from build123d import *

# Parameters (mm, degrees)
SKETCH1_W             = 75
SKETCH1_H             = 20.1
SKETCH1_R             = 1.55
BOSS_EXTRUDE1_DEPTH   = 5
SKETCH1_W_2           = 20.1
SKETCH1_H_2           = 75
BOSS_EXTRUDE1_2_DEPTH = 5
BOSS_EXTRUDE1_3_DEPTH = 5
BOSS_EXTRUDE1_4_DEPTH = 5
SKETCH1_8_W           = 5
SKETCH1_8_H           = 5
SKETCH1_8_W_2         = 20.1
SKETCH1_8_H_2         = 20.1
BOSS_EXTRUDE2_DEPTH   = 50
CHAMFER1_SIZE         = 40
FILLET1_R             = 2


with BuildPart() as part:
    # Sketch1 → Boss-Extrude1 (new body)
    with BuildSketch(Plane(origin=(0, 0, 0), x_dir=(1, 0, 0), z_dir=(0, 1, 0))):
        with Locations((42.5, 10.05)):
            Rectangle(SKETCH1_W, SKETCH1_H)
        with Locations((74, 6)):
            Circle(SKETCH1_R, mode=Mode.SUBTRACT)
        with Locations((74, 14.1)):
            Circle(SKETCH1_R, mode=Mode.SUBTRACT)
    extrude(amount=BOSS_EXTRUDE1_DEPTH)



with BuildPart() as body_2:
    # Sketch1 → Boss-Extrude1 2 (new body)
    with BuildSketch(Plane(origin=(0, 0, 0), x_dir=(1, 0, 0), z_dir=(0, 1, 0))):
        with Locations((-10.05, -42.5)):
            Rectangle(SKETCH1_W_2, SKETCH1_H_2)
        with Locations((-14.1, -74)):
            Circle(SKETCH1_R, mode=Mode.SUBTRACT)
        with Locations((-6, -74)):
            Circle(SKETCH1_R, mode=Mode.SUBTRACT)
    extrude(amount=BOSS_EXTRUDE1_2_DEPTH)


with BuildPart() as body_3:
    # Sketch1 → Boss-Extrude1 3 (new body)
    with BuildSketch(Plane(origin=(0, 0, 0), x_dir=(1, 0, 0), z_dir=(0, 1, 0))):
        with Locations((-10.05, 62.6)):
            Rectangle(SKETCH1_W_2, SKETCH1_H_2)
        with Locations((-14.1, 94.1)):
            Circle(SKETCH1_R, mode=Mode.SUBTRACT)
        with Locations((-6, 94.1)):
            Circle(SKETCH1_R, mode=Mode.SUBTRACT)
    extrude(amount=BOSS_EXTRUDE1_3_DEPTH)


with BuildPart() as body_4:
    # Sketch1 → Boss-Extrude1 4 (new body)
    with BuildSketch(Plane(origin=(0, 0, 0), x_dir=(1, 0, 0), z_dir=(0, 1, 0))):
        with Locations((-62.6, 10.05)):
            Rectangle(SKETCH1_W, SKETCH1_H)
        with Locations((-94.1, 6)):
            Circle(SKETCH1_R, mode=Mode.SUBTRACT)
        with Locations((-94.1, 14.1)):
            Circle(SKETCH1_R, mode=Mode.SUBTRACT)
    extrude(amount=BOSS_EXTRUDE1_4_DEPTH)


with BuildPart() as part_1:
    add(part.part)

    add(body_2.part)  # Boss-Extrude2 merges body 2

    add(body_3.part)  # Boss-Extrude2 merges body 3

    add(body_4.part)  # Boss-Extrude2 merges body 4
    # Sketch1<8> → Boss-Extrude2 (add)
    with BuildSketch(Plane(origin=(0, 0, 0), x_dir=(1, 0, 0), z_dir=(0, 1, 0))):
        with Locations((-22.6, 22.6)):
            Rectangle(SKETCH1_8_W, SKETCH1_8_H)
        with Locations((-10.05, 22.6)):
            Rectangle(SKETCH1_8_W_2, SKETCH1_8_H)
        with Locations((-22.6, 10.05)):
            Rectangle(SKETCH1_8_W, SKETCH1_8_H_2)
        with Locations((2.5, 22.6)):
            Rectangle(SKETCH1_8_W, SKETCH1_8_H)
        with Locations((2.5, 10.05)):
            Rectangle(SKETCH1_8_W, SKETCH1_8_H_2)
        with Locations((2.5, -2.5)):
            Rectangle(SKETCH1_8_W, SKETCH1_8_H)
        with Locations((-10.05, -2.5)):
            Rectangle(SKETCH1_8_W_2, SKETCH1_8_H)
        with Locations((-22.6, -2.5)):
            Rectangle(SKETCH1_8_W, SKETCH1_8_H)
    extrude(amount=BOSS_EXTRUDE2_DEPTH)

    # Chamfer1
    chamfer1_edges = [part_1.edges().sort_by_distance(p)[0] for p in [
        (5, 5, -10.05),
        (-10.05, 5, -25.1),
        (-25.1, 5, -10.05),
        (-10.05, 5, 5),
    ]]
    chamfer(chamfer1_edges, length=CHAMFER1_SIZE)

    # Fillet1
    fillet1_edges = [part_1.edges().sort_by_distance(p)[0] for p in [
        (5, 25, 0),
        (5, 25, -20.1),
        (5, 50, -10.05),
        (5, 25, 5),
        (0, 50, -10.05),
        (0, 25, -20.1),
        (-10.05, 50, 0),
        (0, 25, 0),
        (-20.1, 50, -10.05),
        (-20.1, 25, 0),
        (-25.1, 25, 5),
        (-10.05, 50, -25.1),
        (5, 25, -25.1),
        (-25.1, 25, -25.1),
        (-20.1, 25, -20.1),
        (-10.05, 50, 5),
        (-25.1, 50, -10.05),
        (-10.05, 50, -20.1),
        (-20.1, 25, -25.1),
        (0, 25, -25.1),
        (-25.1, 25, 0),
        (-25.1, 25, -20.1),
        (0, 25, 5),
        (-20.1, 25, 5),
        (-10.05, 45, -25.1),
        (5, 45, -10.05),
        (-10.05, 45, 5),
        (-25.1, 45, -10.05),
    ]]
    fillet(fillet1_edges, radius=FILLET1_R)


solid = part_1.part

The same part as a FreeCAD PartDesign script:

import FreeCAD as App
import Part
import Sketcher
Q = App.Units.Quantity


def edges_at(feature, points):
    """Names of the edges that pass closest to the given points."""
    edges = feature.Shape.Edges
    near = lambda p: min(range(len(edges)), key=lambda i: edges[i].distToShape(Part.Vertex(*p))[0])
    return sorted({f"Edge{near(p) + 1}" for p in points})


def add_polygon(sketch, points):
    """Adds a closed chain of lines whose ends are joined by coincident constraints."""
    first, n = sketch.GeometryCount, len(points)
    for a, b in zip(points, points[1:] + points[:1]):
        sketch.addGeometry(Part.LineSegment(App.Vector(*a, 0), App.Vector(*b, 0)), False)
    for i in range(n):
        sketch.addConstraint(Sketcher.Constraint("Coincident", first + i, 2, first + (i + 1) % n, 1))

doc = App.newDocument("Part")
params = doc.addObject("Spreadsheet::Sheet", "Params")
for row, (alias, value) in enumerate([
    ("sketch1_diameter", "3.1 mm"),
    ("sketch1_width", "75 mm"),
    ("sketch1_height", "20.1 mm"),
    ("pad1_length", "5 mm"),
    ("sketch2_diameter", "3.1 mm"),
    ("sketch2_height", "75 mm"),
    ("sketch2_width", "20.1 mm"),
    ("pad2_length", "5 mm"),
    ("sketch3_diameter", "3.1 mm"),
    ("sketch3_height", "75 mm"),
    ("sketch3_width", "20.1 mm"),
    ("pad3_length", "5 mm"),
    ("sketch4_diameter", "3.1 mm"),
    ("sketch4_width", "75 mm"),
    ("sketch4_height", "20.1 mm"),
    ("pad4_length", "5 mm"),
    ("sketch5_width", "30.1 mm"),
    ("sketch5_width2", "20.1 mm"),
    ("pad5_length", "50 mm"),
    ("chamfer_size", "40 mm"),
    ("fillet_radius", "2 mm"),
], start=1):
    params.set(f"A{row}", alias)
    params.set(f"B{row}", "=" + value)
    params.setAlias(f"B{row}", alias)

body = doc.addObject("PartDesign::Body", "Body")

# Sketch on XZ plane
sketch1 = body.newObject("Sketcher::SketchObject", "Sketch")
sketch1.AttachmentSupport = (doc.getObject("XZ_Plane"), [""])
sketch1.MapMode = "FlatFace"
add_polygon(sketch1, [(5, -20.1), (5, 0), (80, 0), (80, -20.1)])  # lines 0-3
sketch1.addGeometry(Part.Circle(App.Vector(74, -6, 0), App.Vector(0, 0, 1), 1.6), False)  # 4
sketch1.addGeometry(Part.Circle(App.Vector(74, -14.1, 0), App.Vector(0, 0, 1), 1.6), False)  # 5
sketch1.addConstraint(Sketcher.Constraint("Vertical", 0))
sketch1.addConstraint(Sketcher.Constraint("Horizontal", 1))
sketch1.addConstraint(Sketcher.Constraint("Vertical", 2))
sketch1.addConstraint(Sketcher.Constraint("Horizontal", 3))
sketch1.addConstraint(Sketcher.Constraint("Equal", 4, 5))
sketch1.addConstraint(Sketcher.Constraint("PointOnObject", 0, 2, -1))
sketch1.addConstraint(Sketcher.Constraint("Vertical", 4, 3, 5, 3))
sketch1.addConstraint(Sketcher.Constraint("Diameter", 4, Q("3.1 mm")))
sketch1.addConstraint(Sketcher.Constraint("DistanceX", 1, 1, 1, 2, Q("75 mm")))
sketch1.addConstraint(Sketcher.Constraint("DistanceY", 0, 1, 0, 2, Q("20.1 mm")))
sketch1.addConstraint(Sketcher.Constraint("DistanceX", -1, 1, 4, 3, Q("74 mm")))
sketch1.addConstraint(Sketcher.Constraint("DistanceY", 4, 3, -1, 1, Q("6 mm")))
sketch1.addConstraint(Sketcher.Constraint("DistanceX", -1, 1, 0, 2, Q("5 mm")))
sketch1.addConstraint(Sketcher.Constraint("DistanceY", 2, 2, 5, 3, Q("6 mm")))
sketch1.setExpression("Constraints[11]", "Params.sketch1_diameter")
sketch1.setExpression("Constraints[12]", "Params.sketch1_width")
sketch1.setExpression("Constraints[13]", "Params.sketch1_height")
pad1 = body.newObject("PartDesign::Pad", "Pad")
pad1.Profile = sketch1
pad1.setExpression("Length", "Params.pad1_length")
pad1.Reversed = True
body2 = doc.addObject("PartDesign::Body", "Body001")

# Sketch on XZ plane
sketch2 = body2.newObject("Sketcher::SketchObject", "Sketch001")
sketch2.AttachmentSupport = (doc.getObject("XZ_Plane001"), [""])
sketch2.MapMode = "FlatFace"
add_polygon(sketch2, [(-20.1, 5), (-20.1, 80), (0, 80), (0, 5)])  # lines 0-3
sketch2.addGeometry(Part.Circle(App.Vector(-14.1, 74, 0), App.Vector(0, 0, 1), 1.6), False)  # 4
sketch2.addGeometry(Part.Circle(App.Vector(-6, 74, 0), App.Vector(0, 0, 1), 1.6), False)  # 5
sketch2.addConstraint(Sketcher.Constraint("Vertical", 0))
sketch2.addConstraint(Sketcher.Constraint("Horizontal", 1))
sketch2.addConstraint(Sketcher.Constraint("Vertical", 2))
sketch2.addConstraint(Sketcher.Constraint("Horizontal", 3))
sketch2.addConstraint(Sketcher.Constraint("Equal", 4, 5))
sketch2.addConstraint(Sketcher.Constraint("PointOnObject", 1, 2, -2))
sketch2.addConstraint(Sketcher.Constraint("Horizontal", 4, 3, 5, 3))
sketch2.addConstraint(Sketcher.Constraint("Diameter", 4, Q("3.1 mm")))
sketch2.addConstraint(Sketcher.Constraint("DistanceY", 0, 1, 0, 2, Q("75 mm")))
sketch2.addConstraint(Sketcher.Constraint("DistanceX", 1, 1, 1, 2, Q("20.1 mm")))
sketch2.addConstraint(Sketcher.Constraint("DistanceY", -1, 1, 4, 3, Q("74 mm")))
sketch2.addConstraint(Sketcher.Constraint("DistanceX", 5, 3, -1, 1, Q("6 mm")))
sketch2.addConstraint(Sketcher.Constraint("DistanceY", -1, 1, 0, 2, Q("80 mm")))
sketch2.addConstraint(Sketcher.Constraint("DistanceX", 0, 2, 4, 3, Q("6 mm")))
sketch2.setExpression("Constraints[11]", "Params.sketch2_diameter")
sketch2.setExpression("Constraints[12]", "Params.sketch2_height")
sketch2.setExpression("Constraints[13]", "Params.sketch2_width")
pad2 = body2.newObject("PartDesign::Pad", "Pad001")
pad2.Profile = sketch2
pad2.setExpression("Length", "Params.pad2_length")
pad2.Reversed = True
body3 = doc.addObject("PartDesign::Body", "Body002")

# Sketch on XZ plane
sketch3 = body3.newObject("Sketcher::SketchObject", "Sketch002")
sketch3.AttachmentSupport = (doc.getObject("XZ_Plane002"), [""])
sketch3.MapMode = "FlatFace"
add_polygon(sketch3, [(-20.1, -100.1), (-20.1, -25.1), (0, -25.1), (0, -100.1)])  # lines 0-3
sketch3.addGeometry(Part.Circle(App.Vector(-14.1, -94.1, 0), App.Vector(0, 0, 1), 1.6), False)  # 4
sketch3.addGeometry(Part.Circle(App.Vector(-6, -94.1, 0), App.Vector(0, 0, 1), 1.6), False)  # 5
sketch3.addConstraint(Sketcher.Constraint("Vertical", 0))
sketch3.addConstraint(Sketcher.Constraint("Horizontal", 1))
sketch3.addConstraint(Sketcher.Constraint("Vertical", 2))
sketch3.addConstraint(Sketcher.Constraint("Horizontal", 3))
sketch3.addConstraint(Sketcher.Constraint("Equal", 4, 5))
sketch3.addConstraint(Sketcher.Constraint("PointOnObject", 1, 2, -2))
sketch3.addConstraint(Sketcher.Constraint("Horizontal", 4, 3, 5, 3))
sketch3.addConstraint(Sketcher.Constraint("Diameter", 4, Q("3.1 mm")))
sketch3.addConstraint(Sketcher.Constraint("DistanceY", 0, 1, 0, 2, Q("75 mm")))
sketch3.addConstraint(Sketcher.Constraint("DistanceX", 1, 1, 1, 2, Q("20.1 mm")))
sketch3.addConstraint(Sketcher.Constraint("DistanceX", 5, 3, -1, 1, Q("6 mm")))
sketch3.addConstraint(Sketcher.Constraint("DistanceX", 0, 2, 4, 3, Q("6 mm")))
sketch3.addConstraint(Sketcher.Constraint("DistanceY", 4, 3, 0, 2, Q("69 mm")))
sketch3.addConstraint(Sketcher.Constraint("DistanceY", 4, 3, -1, 1, Q("94.1 mm")))
sketch3.setExpression("Constraints[11]", "Params.sketch3_diameter")
sketch3.setExpression("Constraints[12]", "Params.sketch3_height")
sketch3.setExpression("Constraints[13]", "Params.sketch3_width")
pad3 = body3.newObject("PartDesign::Pad", "Pad002")
pad3.Profile = sketch3
pad3.setExpression("Length", "Params.pad3_length")
pad3.Reversed = True
body4 = doc.addObject("PartDesign::Body", "Body003")

# Sketch on XZ plane
sketch4 = body4.newObject("Sketcher::SketchObject", "Sketch003")
sketch4.AttachmentSupport = (doc.getObject("XZ_Plane003"), [""])
sketch4.MapMode = "FlatFace"
add_polygon(sketch4, [(-100.1, -20.1), (-100.1, 0), (-25.1, 0), (-25.1, -20.1)])  # lines 0-3
sketch4.addGeometry(Part.Circle(App.Vector(-94.1, -6, 0), App.Vector(0, 0, 1), 1.6), False)  # 4
sketch4.addGeometry(Part.Circle(App.Vector(-94.1, -14.1, 0), App.Vector(0, 0, 1), 1.6), False)  # 5
sketch4.addConstraint(Sketcher.Constraint("Vertical", 0))
sketch4.addConstraint(Sketcher.Constraint("Horizontal", 1))
sketch4.addConstraint(Sketcher.Constraint("Vertical", 2))
sketch4.addConstraint(Sketcher.Constraint("Horizontal", 3))
sketch4.addConstraint(Sketcher.Constraint("Equal", 4, 5))
sketch4.addConstraint(Sketcher.Constraint("PointOnObject", 0, 2, -1))
sketch4.addConstraint(Sketcher.Constraint("Vertical", 4, 3, 5, 3))
sketch4.addConstraint(Sketcher.Constraint("Diameter", 4, Q("3.1 mm")))
sketch4.addConstraint(Sketcher.Constraint("DistanceX", 1, 1, 1, 2, Q("75 mm")))
sketch4.addConstraint(Sketcher.Constraint("DistanceY", 0, 1, 0, 2, Q("20.1 mm")))
sketch4.addConstraint(Sketcher.Constraint("DistanceY", 4, 3, -1, 1, Q("6 mm")))
sketch4.addConstraint(Sketcher.Constraint("DistanceX", 0, 2, 4, 3, Q("6 mm")))
sketch4.addConstraint(Sketcher.Constraint("DistanceY", 2, 2, 5, 3, Q("6 mm")))
sketch4.addConstraint(Sketcher.Constraint("DistanceX", 4, 3, -1, 1, Q("94.1 mm")))
sketch4.setExpression("Constraints[11]", "Params.sketch4_diameter")
sketch4.setExpression("Constraints[12]", "Params.sketch4_width")
sketch4.setExpression("Constraints[13]", "Params.sketch4_height")
pad4 = body4.newObject("PartDesign::Pad", "Pad003")
pad4.Profile = sketch4
pad4.setExpression("Length", "Params.pad4_length")
pad4.Reversed = True
body.AllowCompound = True
doc.recompute()

boolean = body.newObject("PartDesign::Boolean", "Boolean")
boolean.Type = "Fuse"
boolean.addObjects([body2])
doc.recompute()

boolean2 = body.newObject("PartDesign::Boolean", "Boolean001")
boolean2.Type = "Fuse"
boolean2.addObjects([body3])
doc.recompute()

boolean3 = body.newObject("PartDesign::Boolean", "Boolean002")
boolean3.Type = "Fuse"
boolean3.addObjects([body4])

# Sketch on XZ plane
sketch5 = body.newObject("Sketcher::SketchObject", "Sketch004")
sketch5.AttachmentSupport = (doc.getObject("XZ_Plane"), [""])
sketch5.MapMode = "FlatFace"
add_polygon(sketch5, [(-25, -25), (-25, 5), (5, 5), (5, -25)])  # lines 0-3
add_polygon(sketch5, [(0, 0), (-20, 0), (-20, -20), (0, -20)])  # lines 4-7
sketch5.addConstraint(Sketcher.Constraint("Vertical", 0))
sketch5.addConstraint(Sketcher.Constraint("Horizontal", 1))
sketch5.addConstraint(Sketcher.Constraint("Vertical", 2))
sketch5.addConstraint(Sketcher.Constraint("Horizontal", 3))
sketch5.addConstraint(Sketcher.Constraint("Horizontal", 4))
sketch5.addConstraint(Sketcher.Constraint("Vertical", 5))
sketch5.addConstraint(Sketcher.Constraint("Horizontal", 6))
sketch5.addConstraint(Sketcher.Constraint("Vertical", 7))
sketch5.addConstraint(Sketcher.Constraint("Coincident", 7, 2, -1, 1))
sketch5.addConstraint(Sketcher.Constraint("Equal", 3, 0))
sketch5.addConstraint(Sketcher.Constraint("Equal", 6, 5))
sketch5.addConstraint(Sketcher.Constraint("DistanceX", 1, 1, 1, 2, Q("30.1 mm")))
sketch5.addConstraint(Sketcher.Constraint("DistanceX", 4, 2, 4, 1, Q("20.1 mm")))
sketch5.addConstraint(Sketcher.Constraint("DistanceY", -1, 1, 0, 2, Q("5 mm")))
sketch5.addConstraint(Sketcher.Constraint("DistanceX", -1, 1, 1, 2, Q("5 mm")))
sketch5.setExpression("Constraints[19]", "Params.sketch5_width")
sketch5.setExpression("Constraints[20]", "Params.sketch5_width2")
pad5 = body.newObject("PartDesign::Pad", "Pad004")
pad5.Profile = sketch5
pad5.setExpression("Length", "Params.pad5_length")
pad5.Reversed = True
doc.recompute()

chamfer = body.newObject("PartDesign::Chamfer", "Chamfer")
chamfer.Base = (pad5, edges_at(pad5, [
    (5, 5, -10.05),
    (-10.05, 5, -25.1),
    (-25.1, 5, -10.05),
    (-10.05, 5, 5),
]))
chamfer.setExpression("Size", "Params.chamfer_size")
doc.recompute()

fillet = body.newObject("PartDesign::Fillet", "Fillet")
fillet.Base = (chamfer, edges_at(chamfer, [
    (5, 22.5, 0),
    (5, 22.5, -20.1),
    (5, 50, -10.05),
    (5, 25, 5),
    (0, 50, -10.05),
    (0, 25, -20.1),
    (-10.05, 50, 0),
    (0, 25, 0),
    (-20.1, 50, -10.05),
    (-20.1, 25, 0),
    (-25.1, 25, 5),
    (-10.05, 50, -25.1),
    (5, 25, -25.1),
    (-25.1, 25, -25.1),
    (-20.1, 25, -20.1),
    (-10.05, 50, 5),
    (-25.1, 50, -10.05),
    (-10.05, 50, -20.1),
    (-20.1, 22.5, -25.1),
    (0, 22.5, -25.1),
    (-25.1, 22.5, 0),
    (-25.1, 22.5, -20.1),
    (0, 22.5, 5),
    (-20.1, 22.5, 5),
    (-10.05, 45, -25.1),
    (5, 45, -10.05),
    (-10.05, 45, 5),
    (-25.1, 45, -10.05),
]))
fillet.setExpression("Radius", "Params.fillet_radius")

doc.recompute()
